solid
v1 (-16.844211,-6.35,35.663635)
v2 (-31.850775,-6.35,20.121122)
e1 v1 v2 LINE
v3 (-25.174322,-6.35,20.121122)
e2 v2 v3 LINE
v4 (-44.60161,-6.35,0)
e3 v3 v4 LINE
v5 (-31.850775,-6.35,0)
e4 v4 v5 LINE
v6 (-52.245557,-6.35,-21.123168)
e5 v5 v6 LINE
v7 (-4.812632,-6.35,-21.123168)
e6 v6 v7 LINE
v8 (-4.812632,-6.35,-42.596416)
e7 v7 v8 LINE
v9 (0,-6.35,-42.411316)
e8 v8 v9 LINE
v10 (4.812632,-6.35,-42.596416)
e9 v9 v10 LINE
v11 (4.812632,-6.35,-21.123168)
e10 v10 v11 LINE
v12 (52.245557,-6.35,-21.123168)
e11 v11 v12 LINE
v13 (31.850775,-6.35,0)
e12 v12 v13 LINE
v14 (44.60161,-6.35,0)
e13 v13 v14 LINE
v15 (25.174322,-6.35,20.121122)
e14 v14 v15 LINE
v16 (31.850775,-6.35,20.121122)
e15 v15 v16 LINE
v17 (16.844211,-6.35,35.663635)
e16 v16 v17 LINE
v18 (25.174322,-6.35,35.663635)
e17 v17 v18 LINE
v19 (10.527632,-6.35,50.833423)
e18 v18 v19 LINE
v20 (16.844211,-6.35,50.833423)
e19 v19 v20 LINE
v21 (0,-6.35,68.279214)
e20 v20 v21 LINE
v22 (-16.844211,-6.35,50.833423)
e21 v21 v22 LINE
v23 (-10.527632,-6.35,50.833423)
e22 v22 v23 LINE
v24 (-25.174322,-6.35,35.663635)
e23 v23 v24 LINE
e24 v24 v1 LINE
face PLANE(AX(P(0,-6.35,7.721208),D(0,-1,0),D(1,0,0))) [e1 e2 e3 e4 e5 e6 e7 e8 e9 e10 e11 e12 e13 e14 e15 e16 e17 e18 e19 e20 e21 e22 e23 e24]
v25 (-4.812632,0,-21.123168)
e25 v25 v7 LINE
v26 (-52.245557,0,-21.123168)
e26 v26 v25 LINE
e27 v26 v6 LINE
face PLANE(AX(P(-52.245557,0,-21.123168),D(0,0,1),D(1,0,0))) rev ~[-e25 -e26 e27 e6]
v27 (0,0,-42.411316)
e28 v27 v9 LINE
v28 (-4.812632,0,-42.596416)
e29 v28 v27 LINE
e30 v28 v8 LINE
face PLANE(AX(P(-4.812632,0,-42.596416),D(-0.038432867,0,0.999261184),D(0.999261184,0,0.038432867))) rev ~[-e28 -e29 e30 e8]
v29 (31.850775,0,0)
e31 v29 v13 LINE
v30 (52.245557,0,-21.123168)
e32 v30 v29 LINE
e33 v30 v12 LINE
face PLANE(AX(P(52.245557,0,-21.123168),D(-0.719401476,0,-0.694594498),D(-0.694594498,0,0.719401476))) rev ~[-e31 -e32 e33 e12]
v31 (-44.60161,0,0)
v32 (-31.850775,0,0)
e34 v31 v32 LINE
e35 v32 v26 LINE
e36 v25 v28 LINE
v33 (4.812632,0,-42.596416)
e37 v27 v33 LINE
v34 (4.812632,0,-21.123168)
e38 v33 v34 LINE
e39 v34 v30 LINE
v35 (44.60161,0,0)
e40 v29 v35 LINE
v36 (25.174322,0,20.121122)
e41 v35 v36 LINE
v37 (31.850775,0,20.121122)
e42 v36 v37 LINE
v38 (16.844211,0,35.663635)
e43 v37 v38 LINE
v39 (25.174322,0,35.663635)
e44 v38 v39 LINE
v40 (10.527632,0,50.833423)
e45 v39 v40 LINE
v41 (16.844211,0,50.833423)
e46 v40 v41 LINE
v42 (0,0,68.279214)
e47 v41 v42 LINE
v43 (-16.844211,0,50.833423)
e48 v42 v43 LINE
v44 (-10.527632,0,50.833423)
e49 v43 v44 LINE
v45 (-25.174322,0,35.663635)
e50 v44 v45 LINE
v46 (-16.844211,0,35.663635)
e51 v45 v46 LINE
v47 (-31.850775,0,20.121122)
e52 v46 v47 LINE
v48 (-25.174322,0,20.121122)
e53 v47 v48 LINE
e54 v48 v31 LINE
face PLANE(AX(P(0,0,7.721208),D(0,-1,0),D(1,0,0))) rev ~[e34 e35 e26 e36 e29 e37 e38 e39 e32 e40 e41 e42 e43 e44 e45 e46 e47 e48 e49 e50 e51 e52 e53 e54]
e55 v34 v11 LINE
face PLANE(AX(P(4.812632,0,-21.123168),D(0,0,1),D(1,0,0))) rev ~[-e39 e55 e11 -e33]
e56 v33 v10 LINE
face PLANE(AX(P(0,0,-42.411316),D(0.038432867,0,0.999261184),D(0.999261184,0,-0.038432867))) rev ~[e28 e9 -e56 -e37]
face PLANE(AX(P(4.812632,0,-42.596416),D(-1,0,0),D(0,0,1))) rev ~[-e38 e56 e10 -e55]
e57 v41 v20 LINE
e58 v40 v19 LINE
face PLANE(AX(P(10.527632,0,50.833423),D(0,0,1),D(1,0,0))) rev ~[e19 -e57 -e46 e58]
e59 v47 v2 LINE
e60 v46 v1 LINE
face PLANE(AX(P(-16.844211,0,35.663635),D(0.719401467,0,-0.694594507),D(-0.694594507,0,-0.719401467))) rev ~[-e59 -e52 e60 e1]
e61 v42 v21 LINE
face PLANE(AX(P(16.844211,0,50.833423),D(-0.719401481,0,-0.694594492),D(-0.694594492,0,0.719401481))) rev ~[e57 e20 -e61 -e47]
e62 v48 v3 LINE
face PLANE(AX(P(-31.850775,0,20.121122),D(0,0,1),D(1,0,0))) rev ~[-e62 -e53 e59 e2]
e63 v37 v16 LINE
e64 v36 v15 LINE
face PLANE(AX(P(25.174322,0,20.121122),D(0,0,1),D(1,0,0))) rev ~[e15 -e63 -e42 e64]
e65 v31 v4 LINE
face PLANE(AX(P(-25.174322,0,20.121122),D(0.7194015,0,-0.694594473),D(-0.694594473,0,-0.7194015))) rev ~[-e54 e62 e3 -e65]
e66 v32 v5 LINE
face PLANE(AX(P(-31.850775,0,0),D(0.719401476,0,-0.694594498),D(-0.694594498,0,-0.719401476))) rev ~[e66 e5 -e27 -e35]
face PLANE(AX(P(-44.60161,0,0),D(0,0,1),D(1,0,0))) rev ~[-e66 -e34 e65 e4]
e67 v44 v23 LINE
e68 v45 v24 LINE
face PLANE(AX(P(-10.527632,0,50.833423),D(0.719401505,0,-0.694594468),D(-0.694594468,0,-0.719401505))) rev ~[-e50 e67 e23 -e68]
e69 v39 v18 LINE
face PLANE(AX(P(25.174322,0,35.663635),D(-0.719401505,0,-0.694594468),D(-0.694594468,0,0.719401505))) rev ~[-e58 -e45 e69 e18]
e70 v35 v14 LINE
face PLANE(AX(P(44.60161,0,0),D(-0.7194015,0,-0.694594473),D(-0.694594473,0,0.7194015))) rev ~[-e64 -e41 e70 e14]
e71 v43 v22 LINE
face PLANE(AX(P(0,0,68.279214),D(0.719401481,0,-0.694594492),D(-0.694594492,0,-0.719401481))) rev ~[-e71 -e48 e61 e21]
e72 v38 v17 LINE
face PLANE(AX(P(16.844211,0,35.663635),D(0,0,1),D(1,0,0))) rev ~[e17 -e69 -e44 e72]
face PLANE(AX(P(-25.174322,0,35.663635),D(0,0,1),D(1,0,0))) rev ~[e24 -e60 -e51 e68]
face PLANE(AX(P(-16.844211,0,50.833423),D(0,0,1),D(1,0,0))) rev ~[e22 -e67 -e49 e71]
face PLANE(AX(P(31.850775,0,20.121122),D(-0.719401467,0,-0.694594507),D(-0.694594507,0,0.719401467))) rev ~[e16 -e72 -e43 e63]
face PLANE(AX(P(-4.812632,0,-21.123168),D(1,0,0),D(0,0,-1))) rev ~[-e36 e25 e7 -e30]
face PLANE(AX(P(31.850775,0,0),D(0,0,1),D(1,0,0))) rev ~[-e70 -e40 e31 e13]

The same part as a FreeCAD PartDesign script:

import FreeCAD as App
import Part
import Sketcher
Q = App.Units.Quantity

doc = App.newDocument("Part")
body = doc.addObject("PartDesign::Body", "Body")

# Sketch on XZ plane
sketch1 = doc.addObject("Sketcher::SketchObject", "Sketch")
body.addObject(sketch1)
sketch1.AttachmentSupport = (doc.XZ_Plane, [""])
sketch1.MapMode = "FlatFace"
sketch1.addGeometry([
    Part.LineSegment(App.Vector(16.844211, 50.833423, 0), App.Vector(0, 68.279214, 0)),  # 0
    Part.LineSegment(App.Vector(0, 68.279214, 0), App.Vector(-16.844211, 50.833423, 0)),  # 1
    Part.LineSegment(App.Vector(-16.844211, 50.833423, 0), App.Vector(-10.527632, 50.833423, 0)),  # 2
    Part.LineSegment(App.Vector(-10.527632, 50.833423, 0), App.Vector(-25.174322, 35.663635, 0)),  # 3
    Part.LineSegment(App.Vector(-25.174322, 35.663635, 0), App.Vector(-16.844211, 35.663635, 0)),  # 4
    Part.LineSegment(App.Vector(-16.844211, 35.663635, 0), App.Vector(-31.850775, 20.121122, 0)),  # 5
    Part.LineSegment(App.Vector(-31.850775, 20.121122, 0), App.Vector(-25.174322, 20.121122, 0)),  # 6
    Part.LineSegment(App.Vector(-25.174322, 20.121122, 0), App.Vector(-44.60161, 0, 0)),  # 7
    Part.LineSegment(App.Vector(-44.60161, 0, 0), App.Vector(-31.850775, 0, 0)),  # 8
    Part.LineSegment(App.Vector(-31.850775, 0, 0), App.Vector(-52.245557, -21.123168, 0)),  # 9
    Part.LineSegment(App.Vector(-52.245557, -21.123168, 0), App.Vector(-4.812632, -21.123168, 0)),  # 10
    Part.LineSegment(App.Vector(-4.812632, -21.123168, 0), App.Vector(-4.812632, -42.596416, 0)),  # 11
    Part.LineSegment(App.Vector(-4.812632, -42.596416, 0), App.Vector(0, -42.411316, 0)),  # 12
    Part.LineSegment(App.Vector(0, -42.411316, 0), App.Vector(4.812632, -42.596416, 0)),  # 13
    Part.LineSegment(App.Vector(4.812632, -42.596416, 0), App.Vector(4.812632, -21.123168, 0)),  # 14
    Part.LineSegment(App.Vector(4.812632, -21.123168, 0), App.Vector(52.245557, -21.123168, 0)),  # 15
    Part.LineSegment(App.Vector(52.245557, -21.123168, 0), App.Vector(31.850775, 0, 0)),  # 16
    Part.LineSegment(App.Vector(31.850775, 0, 0), App.Vector(44.60161, 0, 0)),  # 17
    Part.LineSegment(App.Vector(44.60161, 0, 0), App.Vector(25.174322, 20.121122, 0)),  # 18
    Part.LineSegment(App.Vector(25.174322, 20.121122, 0), App.Vector(31.850775, 20.121122, 0)),  # 19
    Part.LineSegment(App.Vector(31.850775, 20.121122, 0), App.Vector(16.844211, 35.663635, 0)),  # 20
    Part.LineSegment(App.Vector(16.844211, 35.663635, 0), App.Vector(25.174322, 35.663635, 0)),  # 21
    Part.LineSegment(App.Vector(25.174322, 35.663635, 0), App.Vector(10.527632, 50.833423, 0)),  # 22
    Part.LineSegment(App.Vector(10.527632, 50.833423, 0), App.Vector(16.844211, 50.833423, 0)),  # 23
], False)
sketch1.addConstraint([
    Sketcher.Constraint("Coincident", 0, 2, 1, 1),
    Sketcher.Constraint("Coincident", 1, 2, 2, 1),
    Sketcher.Constraint("Coincident", 2, 2, 3, 1),
    Sketcher.Constraint("Coincident", 3, 2, 4, 1),
    Sketcher.Constraint("Coincident", 4, 2, 5, 1),
    Sketcher.Constraint("Coincident", 5, 2, 6, 1),
    Sketcher.Constraint("Coincident", 6, 2, 7, 1),
    Sketcher.Constraint("Coincident", 7, 2, 8, 1),
    Sketcher.Constraint("Coincident", 8, 2, 9, 1),
    Sketcher.Constraint("Coincident", 9, 2, 10, 1),
    Sketcher.Constraint("Coincident", 10, 2, 11, 1),
    Sketcher.Constraint("Coincident", 11, 2, 12, 1),
    Sketcher.Constraint("Coincident", 12, 2, 13, 1),
    Sketcher.Constraint("Coincident", 13, 2, 14, 1),
    Sketcher.Constraint("Coincident", 14, 2, 15, 1),
    Sketcher.Constraint("Coincident", 15, 2, 16, 1),
    Sketcher.Constraint("Coincident", 16, 2, 17, 1),
    Sketcher.Constraint("Coincident", 17, 2, 18, 1),
    Sketcher.Constraint("Coincident", 18, 2, 19, 1),
    Sketcher.Constraint("Coincident", 19, 2, 20, 1),
    Sketcher.Constraint("Coincident", 20, 2, 21, 1),
    Sketcher.Constraint("Coincident", 21, 2, 22, 1),
    Sketcher.Constraint("Coincident", 22, 2, 23, 1),
    Sketcher.Constraint("Coincident", 23, 2, 0, 1),
    Sketcher.Constraint("Horizontal", 2),
    Sketcher.Constraint("Horizontal", 4),
    Sketcher.Constraint("Horizontal", 6),
    Sketcher.Constraint("Horizontal", 8),
    Sketcher.Constraint("Horizontal", 10),
    Sketcher.Constraint("Vertical", 11),
    Sketcher.Constraint("Vertical", 14),
    Sketcher.Constraint("Horizontal", 15),
    Sketcher.Constraint("Horizontal", 17),
    Sketcher.Constraint("Horizontal", 19),
    Sketcher.Constraint("Horizontal", 21),
    Sketcher.Constraint("Horizontal", 23),
    Sketcher.Constraint("Symmetric", 8, 2, 16, 2, -1, 1),
    Sketcher.Constraint("Symmetric", 11, 2, 13, 2, -2),
    Sketcher.Constraint("Symmetric", 9, 2, 15, 2, -2),
    Sketcher.Constraint("Symmetric", 7, 2, 17, 2, -2),
    Sketcher.Constraint("Symmetric", 6, 2, 18, 2, -2),
    Sketcher.Constraint("Symmetric", 4, 2, 20, 2, -2),
    Sketcher.Constraint("Symmetric", 2, 2, 22, 2, -2),
    Sketcher.Constraint("PointOnObject", 0, 2, -2),
    Sketcher.Constraint("PointOnObject", 12, 2, -2),
    Sketcher.Constraint("Parallel", 1, 3),
    Sketcher.Constraint("Parallel", 3, 5),
    Sketcher.Constraint("Parallel", 5, 7),
    Sketcher.Constraint("Parallel", 7, 9),
    Sketcher.Constraint("Parallel", 0, 16),
    Sketcher.Constraint("Parallel", 18, 20),
    Sketcher.Constraint("Parallel", 20, 22),
    Sketcher.Constraint("Vertical", 1, 2, 4, 2),
    Sketcher.Constraint("Vertical", 3, 2, 6, 2),
    Sketcher.Constraint("Vertical", 5, 2, 8, 2),
    Sketcher.Constraint("DistanceX", 2, 1, 2, 2, 6.316579),
    Sketcher.Constraint("DistanceX", 4, 1, 4, 2, 8.330111),
    Sketcher.Constraint("DistanceY", 5, 2, 1, 2, 30.712301),
    Sketcher.Constraint("DistanceX", 7, 2, 4, 2, 27.757399),
    Sketcher.Constraint("DistanceY", 11, 2, 12, 2, 0.1851),
    Sketcher.Constraint("Distance", 3, 21.086678),
    Sketcher.Constraint("Distance", 9, 29.362142),
    Sketcher.Constraint("Distance", 12, 4.81619),
    Sketcher.Constraint("DistanceX", 10, 1, 10, 2, 47.432925),
    Sketcher.Constraint("DistanceY", 11, 2, 11, 1, 21.473248),
])
pad1 = doc.addObject("PartDesign::Pad", "Pad")
body.addObject(pad1)
pad1.Profile = sketch1
pad1.Length = Q("0.25 in")

doc.recompute()
